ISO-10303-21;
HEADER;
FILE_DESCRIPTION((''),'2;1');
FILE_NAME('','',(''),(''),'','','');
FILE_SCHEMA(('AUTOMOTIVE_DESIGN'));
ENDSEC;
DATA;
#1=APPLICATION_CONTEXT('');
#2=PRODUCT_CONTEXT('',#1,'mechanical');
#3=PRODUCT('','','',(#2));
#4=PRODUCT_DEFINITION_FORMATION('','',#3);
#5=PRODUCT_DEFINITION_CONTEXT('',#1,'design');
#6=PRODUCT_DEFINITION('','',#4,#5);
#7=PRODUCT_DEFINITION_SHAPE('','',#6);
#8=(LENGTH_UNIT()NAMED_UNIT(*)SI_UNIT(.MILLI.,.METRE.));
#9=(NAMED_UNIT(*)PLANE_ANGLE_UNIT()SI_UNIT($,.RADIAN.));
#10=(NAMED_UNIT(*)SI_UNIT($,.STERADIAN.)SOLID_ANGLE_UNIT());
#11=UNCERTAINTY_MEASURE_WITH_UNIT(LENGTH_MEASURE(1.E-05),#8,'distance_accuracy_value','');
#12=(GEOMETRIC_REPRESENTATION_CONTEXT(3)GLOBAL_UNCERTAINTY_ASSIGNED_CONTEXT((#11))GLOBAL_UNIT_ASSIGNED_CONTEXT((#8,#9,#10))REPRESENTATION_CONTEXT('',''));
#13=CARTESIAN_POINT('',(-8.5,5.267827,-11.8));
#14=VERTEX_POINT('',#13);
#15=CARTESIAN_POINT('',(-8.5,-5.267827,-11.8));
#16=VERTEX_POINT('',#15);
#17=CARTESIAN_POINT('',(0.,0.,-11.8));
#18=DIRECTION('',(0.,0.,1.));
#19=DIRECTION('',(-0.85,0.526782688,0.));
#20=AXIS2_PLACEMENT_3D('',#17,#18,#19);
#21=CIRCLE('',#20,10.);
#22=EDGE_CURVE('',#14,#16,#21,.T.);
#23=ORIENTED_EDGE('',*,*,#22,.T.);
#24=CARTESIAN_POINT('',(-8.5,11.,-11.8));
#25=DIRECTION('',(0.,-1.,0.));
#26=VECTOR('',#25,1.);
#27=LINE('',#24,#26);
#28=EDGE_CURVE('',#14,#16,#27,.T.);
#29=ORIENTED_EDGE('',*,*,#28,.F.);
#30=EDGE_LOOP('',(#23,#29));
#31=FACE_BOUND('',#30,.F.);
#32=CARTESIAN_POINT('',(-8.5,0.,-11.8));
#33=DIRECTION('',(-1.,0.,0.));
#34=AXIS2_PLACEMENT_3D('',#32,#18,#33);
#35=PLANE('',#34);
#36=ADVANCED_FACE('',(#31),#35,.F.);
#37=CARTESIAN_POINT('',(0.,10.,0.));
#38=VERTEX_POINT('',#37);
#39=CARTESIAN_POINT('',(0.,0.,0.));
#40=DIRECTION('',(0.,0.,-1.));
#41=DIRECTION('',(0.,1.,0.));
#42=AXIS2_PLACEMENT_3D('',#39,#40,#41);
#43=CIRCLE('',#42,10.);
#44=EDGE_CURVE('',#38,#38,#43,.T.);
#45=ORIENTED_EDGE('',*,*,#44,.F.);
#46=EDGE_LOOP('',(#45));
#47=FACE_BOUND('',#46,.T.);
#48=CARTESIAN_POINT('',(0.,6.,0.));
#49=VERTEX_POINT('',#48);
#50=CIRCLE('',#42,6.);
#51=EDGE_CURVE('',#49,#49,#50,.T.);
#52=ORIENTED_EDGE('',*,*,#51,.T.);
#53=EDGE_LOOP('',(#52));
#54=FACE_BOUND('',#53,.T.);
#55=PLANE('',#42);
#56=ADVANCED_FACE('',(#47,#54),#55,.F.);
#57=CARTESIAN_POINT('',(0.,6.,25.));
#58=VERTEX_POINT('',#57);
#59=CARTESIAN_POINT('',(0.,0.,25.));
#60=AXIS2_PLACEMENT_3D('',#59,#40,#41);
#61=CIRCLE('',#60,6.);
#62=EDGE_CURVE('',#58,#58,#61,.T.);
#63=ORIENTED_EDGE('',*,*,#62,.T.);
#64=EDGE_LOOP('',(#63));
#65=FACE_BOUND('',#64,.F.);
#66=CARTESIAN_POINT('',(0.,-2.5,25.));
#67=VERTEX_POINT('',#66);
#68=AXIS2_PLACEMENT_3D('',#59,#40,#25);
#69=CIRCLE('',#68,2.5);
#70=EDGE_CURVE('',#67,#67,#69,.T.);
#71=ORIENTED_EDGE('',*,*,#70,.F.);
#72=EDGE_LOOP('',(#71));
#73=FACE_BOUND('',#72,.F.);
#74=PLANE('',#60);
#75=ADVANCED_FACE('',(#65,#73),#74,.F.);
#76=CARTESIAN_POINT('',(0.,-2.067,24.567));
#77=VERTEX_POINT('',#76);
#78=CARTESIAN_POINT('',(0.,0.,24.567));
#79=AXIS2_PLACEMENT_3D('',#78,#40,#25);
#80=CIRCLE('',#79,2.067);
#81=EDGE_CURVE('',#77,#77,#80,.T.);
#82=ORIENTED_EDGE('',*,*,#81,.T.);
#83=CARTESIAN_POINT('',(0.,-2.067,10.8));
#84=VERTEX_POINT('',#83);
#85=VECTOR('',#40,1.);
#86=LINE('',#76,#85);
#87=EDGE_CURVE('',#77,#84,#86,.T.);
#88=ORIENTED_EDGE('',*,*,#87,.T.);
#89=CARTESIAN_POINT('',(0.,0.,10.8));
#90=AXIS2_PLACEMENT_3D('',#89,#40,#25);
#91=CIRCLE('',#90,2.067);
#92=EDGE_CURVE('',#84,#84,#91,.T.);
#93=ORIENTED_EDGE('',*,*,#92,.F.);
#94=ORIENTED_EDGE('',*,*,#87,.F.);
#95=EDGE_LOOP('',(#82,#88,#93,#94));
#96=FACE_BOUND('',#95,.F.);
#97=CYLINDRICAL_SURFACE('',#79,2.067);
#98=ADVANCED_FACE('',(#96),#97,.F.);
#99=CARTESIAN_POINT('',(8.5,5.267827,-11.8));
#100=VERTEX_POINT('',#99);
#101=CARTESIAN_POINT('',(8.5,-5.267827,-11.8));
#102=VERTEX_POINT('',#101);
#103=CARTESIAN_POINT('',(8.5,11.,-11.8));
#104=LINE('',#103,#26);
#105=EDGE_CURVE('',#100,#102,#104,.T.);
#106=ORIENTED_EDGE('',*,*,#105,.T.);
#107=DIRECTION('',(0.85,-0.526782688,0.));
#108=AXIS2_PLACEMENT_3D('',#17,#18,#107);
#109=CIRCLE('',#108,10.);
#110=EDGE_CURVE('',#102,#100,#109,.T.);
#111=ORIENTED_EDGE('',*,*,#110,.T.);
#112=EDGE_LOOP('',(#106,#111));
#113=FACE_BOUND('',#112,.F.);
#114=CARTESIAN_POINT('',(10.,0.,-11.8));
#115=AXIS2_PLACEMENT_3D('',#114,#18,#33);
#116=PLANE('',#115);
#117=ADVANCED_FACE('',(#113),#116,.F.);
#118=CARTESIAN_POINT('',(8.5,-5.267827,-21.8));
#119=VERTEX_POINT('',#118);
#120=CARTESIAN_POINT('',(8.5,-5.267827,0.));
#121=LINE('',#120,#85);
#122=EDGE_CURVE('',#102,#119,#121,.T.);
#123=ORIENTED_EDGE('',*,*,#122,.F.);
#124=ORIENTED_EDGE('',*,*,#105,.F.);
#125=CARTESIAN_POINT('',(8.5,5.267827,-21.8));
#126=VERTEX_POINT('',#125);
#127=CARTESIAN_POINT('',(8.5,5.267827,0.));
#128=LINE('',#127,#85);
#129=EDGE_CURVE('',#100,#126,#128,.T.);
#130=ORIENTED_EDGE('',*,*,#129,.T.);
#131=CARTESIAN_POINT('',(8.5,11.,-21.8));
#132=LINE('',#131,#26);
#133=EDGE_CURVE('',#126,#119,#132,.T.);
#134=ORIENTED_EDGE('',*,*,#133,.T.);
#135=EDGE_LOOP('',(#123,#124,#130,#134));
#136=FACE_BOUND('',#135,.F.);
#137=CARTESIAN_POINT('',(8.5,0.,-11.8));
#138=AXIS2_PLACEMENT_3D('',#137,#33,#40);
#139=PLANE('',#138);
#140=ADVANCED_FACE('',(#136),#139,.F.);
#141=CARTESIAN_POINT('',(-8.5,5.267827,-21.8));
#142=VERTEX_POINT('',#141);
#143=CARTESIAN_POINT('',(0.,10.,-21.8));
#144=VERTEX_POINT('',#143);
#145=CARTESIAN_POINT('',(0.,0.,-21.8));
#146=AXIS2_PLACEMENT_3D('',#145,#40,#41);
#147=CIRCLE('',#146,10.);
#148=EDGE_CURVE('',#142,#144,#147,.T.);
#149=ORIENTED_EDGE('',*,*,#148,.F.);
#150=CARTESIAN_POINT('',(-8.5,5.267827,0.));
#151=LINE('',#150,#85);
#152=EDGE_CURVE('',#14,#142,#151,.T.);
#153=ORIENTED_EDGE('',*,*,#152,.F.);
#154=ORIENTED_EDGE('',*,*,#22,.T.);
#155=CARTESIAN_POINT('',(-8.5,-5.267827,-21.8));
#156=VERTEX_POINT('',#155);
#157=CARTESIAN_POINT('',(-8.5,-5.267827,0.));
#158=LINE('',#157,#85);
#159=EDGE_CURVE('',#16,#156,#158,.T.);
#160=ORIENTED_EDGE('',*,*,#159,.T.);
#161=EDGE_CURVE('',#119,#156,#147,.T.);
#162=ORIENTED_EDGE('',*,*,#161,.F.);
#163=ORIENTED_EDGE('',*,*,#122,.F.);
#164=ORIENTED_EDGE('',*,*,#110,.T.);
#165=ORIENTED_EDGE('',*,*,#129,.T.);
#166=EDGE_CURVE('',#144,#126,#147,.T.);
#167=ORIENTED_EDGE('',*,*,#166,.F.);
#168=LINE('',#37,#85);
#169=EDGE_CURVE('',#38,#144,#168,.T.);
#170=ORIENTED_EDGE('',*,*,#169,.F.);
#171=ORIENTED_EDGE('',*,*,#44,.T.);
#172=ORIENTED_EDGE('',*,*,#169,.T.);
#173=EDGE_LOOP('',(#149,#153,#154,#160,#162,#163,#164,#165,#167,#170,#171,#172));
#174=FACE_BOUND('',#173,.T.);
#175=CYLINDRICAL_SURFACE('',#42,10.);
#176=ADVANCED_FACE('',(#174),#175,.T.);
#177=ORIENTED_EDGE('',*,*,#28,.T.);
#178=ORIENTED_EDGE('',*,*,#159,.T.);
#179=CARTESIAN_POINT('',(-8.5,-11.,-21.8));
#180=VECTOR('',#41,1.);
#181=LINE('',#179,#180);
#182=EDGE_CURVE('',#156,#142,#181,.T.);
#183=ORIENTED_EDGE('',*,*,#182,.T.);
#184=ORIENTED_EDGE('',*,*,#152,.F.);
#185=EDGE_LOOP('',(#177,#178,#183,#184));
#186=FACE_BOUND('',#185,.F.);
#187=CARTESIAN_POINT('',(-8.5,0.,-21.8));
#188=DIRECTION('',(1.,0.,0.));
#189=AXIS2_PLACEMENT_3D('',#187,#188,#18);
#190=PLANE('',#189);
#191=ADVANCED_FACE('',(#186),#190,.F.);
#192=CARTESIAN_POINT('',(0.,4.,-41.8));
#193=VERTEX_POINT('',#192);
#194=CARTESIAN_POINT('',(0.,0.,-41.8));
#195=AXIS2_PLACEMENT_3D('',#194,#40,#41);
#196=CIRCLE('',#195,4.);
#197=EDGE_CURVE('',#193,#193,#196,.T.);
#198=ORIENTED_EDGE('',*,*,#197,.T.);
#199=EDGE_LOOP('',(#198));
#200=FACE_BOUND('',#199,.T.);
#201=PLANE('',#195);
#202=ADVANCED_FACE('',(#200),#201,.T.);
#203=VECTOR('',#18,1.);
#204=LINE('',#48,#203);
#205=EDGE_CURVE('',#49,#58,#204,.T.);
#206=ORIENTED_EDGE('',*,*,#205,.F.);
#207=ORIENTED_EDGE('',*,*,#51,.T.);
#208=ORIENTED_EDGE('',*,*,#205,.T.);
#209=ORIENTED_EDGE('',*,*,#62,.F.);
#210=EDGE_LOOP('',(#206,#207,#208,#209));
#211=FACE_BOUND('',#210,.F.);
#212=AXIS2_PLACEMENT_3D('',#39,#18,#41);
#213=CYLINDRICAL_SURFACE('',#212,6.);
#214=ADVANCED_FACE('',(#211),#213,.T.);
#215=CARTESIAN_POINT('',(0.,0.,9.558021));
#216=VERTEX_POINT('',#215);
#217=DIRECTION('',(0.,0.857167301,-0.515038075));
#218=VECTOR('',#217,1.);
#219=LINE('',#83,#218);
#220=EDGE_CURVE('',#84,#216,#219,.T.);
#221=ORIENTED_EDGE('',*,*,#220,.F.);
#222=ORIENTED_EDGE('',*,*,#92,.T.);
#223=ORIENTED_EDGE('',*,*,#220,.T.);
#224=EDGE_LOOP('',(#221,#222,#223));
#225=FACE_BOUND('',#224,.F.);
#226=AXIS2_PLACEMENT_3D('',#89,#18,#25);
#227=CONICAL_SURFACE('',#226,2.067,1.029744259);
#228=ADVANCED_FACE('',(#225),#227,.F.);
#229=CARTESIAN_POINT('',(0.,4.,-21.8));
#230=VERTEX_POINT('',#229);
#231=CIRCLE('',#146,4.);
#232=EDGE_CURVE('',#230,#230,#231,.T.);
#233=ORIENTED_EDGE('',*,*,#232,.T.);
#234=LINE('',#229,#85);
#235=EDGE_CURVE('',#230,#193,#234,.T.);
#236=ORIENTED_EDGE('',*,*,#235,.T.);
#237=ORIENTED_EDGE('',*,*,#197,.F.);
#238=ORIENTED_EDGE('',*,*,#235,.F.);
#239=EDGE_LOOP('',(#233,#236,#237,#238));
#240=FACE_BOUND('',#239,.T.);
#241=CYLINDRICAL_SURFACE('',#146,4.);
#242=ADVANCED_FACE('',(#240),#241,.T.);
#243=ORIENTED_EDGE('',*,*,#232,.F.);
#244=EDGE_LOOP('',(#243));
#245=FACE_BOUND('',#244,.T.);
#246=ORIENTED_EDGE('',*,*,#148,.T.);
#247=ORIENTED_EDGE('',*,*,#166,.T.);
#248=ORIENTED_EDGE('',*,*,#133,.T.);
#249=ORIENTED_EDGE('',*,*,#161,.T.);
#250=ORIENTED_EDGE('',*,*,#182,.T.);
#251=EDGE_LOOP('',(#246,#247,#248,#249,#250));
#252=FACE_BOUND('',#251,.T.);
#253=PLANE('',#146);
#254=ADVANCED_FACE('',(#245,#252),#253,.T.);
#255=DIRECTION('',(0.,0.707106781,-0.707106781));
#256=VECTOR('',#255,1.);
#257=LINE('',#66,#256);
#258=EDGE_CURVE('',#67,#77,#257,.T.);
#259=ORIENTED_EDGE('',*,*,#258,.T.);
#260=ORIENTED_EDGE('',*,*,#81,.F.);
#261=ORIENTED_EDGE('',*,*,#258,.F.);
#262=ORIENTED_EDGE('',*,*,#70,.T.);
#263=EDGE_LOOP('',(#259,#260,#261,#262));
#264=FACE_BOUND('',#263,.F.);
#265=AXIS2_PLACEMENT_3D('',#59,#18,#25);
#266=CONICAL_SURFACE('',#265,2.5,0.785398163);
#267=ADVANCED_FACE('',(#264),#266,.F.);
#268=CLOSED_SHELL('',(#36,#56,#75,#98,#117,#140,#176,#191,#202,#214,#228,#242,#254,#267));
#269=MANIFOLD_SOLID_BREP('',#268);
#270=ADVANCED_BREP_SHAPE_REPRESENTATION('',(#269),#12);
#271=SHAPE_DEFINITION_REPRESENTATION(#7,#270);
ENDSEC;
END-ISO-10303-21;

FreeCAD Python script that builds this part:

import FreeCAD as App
import Part
import Sketcher

V = App.Vector


def add_polygon(sketch, points):
    """Adds a closed chain of lines whose ends are joined by coincident constraints."""
    first, n = sketch.GeometryCount, len(points)
    for a, b in zip(points, points[1:] + points[:1]):
        sketch.addGeometry(Part.LineSegment(App.Vector(*a, 0), App.Vector(*b, 0)), False)
    for i in range(n):
        sketch.addConstraint(Sketcher.Constraint("Coincident", first + i, 2, first + (i + 1) % n, 1))

doc = App.newDocument("Part")
body = doc.addObject("PartDesign::Body", "Body")

# Sketch on YZ plane
sketch1 = doc.addObject("Sketcher::SketchObject", "Sketch")
body.addObject(sketch1)
sketch1.AttachmentSupport = (doc.YZ_Plane, [""])
sketch1.MapMode = "FlatFace"
add_polygon(sketch1, [(6, 25), (0, 25), (0, -41.8), (4, -41.8), (4, -21.8), (10, -21.8), (10, 0), (6, 0)])  # lines 0-7
sketch1.addConstraint(Sketcher.Constraint("Horizontal", 0))
sketch1.addConstraint(Sketcher.Constraint("Vertical", 1))
sketch1.addConstraint(Sketcher.Constraint("Horizontal", 2))
sketch1.addConstraint(Sketcher.Constraint("Vertical", 3))
sketch1.addConstraint(Sketcher.Constraint("Horizontal", 4))
sketch1.addConstraint(Sketcher.Constraint("Vertical", 5))
sketch1.addConstraint(Sketcher.Constraint("Horizontal", 6))
sketch1.addConstraint(Sketcher.Constraint("Vertical", 7))
sketch1.addConstraint(Sketcher.Constraint("PointOnObject", 0, 2, -2))
sketch1.addConstraint(Sketcher.Constraint("PointOnObject", 5, 2, -1))
sketch1.addConstraint(Sketcher.Constraint("Equal", 0, 4))
sketch1.addConstraint(Sketcher.Constraint("DistanceY", 3, 1, 3, 2, 20.0))
sketch1.addConstraint(Sketcher.Constraint("DistanceY", 7, 1, 7, 2, 25.0))
sketch1.addConstraint(Sketcher.Constraint("DistanceY", 5, 1, 5, 2, 21.8))
sketch1.addConstraint(Sketcher.Constraint("DistanceX", 0, 2, 0, 1, 6.0))
sketch1.addConstraint(Sketcher.Constraint("DistanceX", 2, 1, 2, 2, 4.0))
revolution = doc.addObject("PartDesign::Revolution", "Revolution")
body.addObject(revolution)
revolution.Profile = sketch1
revolution.ReferenceAxis = (sketch1, ["V_Axis"])
revolution.Angle = 360

# Sketch on XY plane
sketch2 = doc.addObject("Sketcher::SketchObject", "Sketch001")
body.addObject(sketch2)
sketch2.AttachmentSupport = (doc.XY_Plane, [""])
sketch2.MapMode = "FlatFace"
sketch2.AttachmentOffset = App.Placement(V(0, 0, 25), App.Rotation())
sketch2.addGeometry(Part.Circle(V(0, 0, 0), V(0, 0, 1), 2.067), False)
sketch2.addConstraint(Sketcher.Constraint("Coincident", 0, 3, -1, 1))
sketch2.addConstraint(Sketcher.Constraint("Diameter", 0, 4.134))
doc.recompute()
hole = doc.addObject("PartDesign::Hole", "Hole")
body.addObject(hole)
hole.Profile = sketch2
hole.ThreadType = "None"
hole.Diameter = 4.134
hole.DepthType = "Dimension"
hole.Depth = 14.2
hole.DrillPoint = "Angled"
hole.DrillPointAngle = 118
hole.HoleCutType = "Countersink"
hole.HoleCutDiameter = 5
hole.HoleCutCountersinkAngle = 90

# Sketch on XZ plane
sketch3 = doc.addObject("Sketcher::SketchObject", "Sketch002")
body.addObject(sketch3)
sketch3.AttachmentSupport = (doc.XZ_Plane, [""])
sketch3.MapMode = "FlatFace"
add_polygon(sketch3, [(-8.5, -11.8), (-8.5, -21.8), (-10, -21.8), (-10, -11.8)])  # lines 0-3
add_polygon(sketch3, [(8.5, -11.8), (10, -11.8), (10, -21.8), (8.5, -21.8)])  # lines 4-7
sketch3.addConstraint(Sketcher.Constraint("Vertical", 0))
sketch3.addConstraint(Sketcher.Constraint("Horizontal", 1))
sketch3.addConstraint(Sketcher.Constraint("Vertical", 2))
sketch3.addConstraint(Sketcher.Constraint("Horizontal", 3))
sketch3.addConstraint(Sketcher.Constraint("Horizontal", 4))
sketch3.addConstraint(Sketcher.Constraint("Vertical", 5))
sketch3.addConstraint(Sketcher.Constraint("Horizontal", 6))
sketch3.addConstraint(Sketcher.Constraint("Vertical", 7))
sketch3.addConstraint(Sketcher.Constraint("Symmetric", 2, 2, 4, 2, -2))
sketch3.addConstraint(Sketcher.Constraint("Symmetric", 0, 2, 6, 2, -2))
sketch3.addConstraint(Sketcher.Constraint("DistanceY", 0, 2, 0, 1, 10.0))
sketch3.addConstraint(Sketcher.Constraint("DistanceX", 1, 2, -1, 1, 10.0))
sketch3.addConstraint(Sketcher.Constraint("DistanceX", 0, 2, 6, 2, 17.0))
sketch3.addConstraint(Sketcher.Constraint("DistanceY", 0, 2, -1, 1, 21.8))
pocket1 = doc.addObject("PartDesign::Pocket", "Pocket")
body.addObject(pocket1)
pocket1.Profile = sketch3
pocket1.Type = "ThroughAll"
pocket1.Midplane = True

doc.recompute()
